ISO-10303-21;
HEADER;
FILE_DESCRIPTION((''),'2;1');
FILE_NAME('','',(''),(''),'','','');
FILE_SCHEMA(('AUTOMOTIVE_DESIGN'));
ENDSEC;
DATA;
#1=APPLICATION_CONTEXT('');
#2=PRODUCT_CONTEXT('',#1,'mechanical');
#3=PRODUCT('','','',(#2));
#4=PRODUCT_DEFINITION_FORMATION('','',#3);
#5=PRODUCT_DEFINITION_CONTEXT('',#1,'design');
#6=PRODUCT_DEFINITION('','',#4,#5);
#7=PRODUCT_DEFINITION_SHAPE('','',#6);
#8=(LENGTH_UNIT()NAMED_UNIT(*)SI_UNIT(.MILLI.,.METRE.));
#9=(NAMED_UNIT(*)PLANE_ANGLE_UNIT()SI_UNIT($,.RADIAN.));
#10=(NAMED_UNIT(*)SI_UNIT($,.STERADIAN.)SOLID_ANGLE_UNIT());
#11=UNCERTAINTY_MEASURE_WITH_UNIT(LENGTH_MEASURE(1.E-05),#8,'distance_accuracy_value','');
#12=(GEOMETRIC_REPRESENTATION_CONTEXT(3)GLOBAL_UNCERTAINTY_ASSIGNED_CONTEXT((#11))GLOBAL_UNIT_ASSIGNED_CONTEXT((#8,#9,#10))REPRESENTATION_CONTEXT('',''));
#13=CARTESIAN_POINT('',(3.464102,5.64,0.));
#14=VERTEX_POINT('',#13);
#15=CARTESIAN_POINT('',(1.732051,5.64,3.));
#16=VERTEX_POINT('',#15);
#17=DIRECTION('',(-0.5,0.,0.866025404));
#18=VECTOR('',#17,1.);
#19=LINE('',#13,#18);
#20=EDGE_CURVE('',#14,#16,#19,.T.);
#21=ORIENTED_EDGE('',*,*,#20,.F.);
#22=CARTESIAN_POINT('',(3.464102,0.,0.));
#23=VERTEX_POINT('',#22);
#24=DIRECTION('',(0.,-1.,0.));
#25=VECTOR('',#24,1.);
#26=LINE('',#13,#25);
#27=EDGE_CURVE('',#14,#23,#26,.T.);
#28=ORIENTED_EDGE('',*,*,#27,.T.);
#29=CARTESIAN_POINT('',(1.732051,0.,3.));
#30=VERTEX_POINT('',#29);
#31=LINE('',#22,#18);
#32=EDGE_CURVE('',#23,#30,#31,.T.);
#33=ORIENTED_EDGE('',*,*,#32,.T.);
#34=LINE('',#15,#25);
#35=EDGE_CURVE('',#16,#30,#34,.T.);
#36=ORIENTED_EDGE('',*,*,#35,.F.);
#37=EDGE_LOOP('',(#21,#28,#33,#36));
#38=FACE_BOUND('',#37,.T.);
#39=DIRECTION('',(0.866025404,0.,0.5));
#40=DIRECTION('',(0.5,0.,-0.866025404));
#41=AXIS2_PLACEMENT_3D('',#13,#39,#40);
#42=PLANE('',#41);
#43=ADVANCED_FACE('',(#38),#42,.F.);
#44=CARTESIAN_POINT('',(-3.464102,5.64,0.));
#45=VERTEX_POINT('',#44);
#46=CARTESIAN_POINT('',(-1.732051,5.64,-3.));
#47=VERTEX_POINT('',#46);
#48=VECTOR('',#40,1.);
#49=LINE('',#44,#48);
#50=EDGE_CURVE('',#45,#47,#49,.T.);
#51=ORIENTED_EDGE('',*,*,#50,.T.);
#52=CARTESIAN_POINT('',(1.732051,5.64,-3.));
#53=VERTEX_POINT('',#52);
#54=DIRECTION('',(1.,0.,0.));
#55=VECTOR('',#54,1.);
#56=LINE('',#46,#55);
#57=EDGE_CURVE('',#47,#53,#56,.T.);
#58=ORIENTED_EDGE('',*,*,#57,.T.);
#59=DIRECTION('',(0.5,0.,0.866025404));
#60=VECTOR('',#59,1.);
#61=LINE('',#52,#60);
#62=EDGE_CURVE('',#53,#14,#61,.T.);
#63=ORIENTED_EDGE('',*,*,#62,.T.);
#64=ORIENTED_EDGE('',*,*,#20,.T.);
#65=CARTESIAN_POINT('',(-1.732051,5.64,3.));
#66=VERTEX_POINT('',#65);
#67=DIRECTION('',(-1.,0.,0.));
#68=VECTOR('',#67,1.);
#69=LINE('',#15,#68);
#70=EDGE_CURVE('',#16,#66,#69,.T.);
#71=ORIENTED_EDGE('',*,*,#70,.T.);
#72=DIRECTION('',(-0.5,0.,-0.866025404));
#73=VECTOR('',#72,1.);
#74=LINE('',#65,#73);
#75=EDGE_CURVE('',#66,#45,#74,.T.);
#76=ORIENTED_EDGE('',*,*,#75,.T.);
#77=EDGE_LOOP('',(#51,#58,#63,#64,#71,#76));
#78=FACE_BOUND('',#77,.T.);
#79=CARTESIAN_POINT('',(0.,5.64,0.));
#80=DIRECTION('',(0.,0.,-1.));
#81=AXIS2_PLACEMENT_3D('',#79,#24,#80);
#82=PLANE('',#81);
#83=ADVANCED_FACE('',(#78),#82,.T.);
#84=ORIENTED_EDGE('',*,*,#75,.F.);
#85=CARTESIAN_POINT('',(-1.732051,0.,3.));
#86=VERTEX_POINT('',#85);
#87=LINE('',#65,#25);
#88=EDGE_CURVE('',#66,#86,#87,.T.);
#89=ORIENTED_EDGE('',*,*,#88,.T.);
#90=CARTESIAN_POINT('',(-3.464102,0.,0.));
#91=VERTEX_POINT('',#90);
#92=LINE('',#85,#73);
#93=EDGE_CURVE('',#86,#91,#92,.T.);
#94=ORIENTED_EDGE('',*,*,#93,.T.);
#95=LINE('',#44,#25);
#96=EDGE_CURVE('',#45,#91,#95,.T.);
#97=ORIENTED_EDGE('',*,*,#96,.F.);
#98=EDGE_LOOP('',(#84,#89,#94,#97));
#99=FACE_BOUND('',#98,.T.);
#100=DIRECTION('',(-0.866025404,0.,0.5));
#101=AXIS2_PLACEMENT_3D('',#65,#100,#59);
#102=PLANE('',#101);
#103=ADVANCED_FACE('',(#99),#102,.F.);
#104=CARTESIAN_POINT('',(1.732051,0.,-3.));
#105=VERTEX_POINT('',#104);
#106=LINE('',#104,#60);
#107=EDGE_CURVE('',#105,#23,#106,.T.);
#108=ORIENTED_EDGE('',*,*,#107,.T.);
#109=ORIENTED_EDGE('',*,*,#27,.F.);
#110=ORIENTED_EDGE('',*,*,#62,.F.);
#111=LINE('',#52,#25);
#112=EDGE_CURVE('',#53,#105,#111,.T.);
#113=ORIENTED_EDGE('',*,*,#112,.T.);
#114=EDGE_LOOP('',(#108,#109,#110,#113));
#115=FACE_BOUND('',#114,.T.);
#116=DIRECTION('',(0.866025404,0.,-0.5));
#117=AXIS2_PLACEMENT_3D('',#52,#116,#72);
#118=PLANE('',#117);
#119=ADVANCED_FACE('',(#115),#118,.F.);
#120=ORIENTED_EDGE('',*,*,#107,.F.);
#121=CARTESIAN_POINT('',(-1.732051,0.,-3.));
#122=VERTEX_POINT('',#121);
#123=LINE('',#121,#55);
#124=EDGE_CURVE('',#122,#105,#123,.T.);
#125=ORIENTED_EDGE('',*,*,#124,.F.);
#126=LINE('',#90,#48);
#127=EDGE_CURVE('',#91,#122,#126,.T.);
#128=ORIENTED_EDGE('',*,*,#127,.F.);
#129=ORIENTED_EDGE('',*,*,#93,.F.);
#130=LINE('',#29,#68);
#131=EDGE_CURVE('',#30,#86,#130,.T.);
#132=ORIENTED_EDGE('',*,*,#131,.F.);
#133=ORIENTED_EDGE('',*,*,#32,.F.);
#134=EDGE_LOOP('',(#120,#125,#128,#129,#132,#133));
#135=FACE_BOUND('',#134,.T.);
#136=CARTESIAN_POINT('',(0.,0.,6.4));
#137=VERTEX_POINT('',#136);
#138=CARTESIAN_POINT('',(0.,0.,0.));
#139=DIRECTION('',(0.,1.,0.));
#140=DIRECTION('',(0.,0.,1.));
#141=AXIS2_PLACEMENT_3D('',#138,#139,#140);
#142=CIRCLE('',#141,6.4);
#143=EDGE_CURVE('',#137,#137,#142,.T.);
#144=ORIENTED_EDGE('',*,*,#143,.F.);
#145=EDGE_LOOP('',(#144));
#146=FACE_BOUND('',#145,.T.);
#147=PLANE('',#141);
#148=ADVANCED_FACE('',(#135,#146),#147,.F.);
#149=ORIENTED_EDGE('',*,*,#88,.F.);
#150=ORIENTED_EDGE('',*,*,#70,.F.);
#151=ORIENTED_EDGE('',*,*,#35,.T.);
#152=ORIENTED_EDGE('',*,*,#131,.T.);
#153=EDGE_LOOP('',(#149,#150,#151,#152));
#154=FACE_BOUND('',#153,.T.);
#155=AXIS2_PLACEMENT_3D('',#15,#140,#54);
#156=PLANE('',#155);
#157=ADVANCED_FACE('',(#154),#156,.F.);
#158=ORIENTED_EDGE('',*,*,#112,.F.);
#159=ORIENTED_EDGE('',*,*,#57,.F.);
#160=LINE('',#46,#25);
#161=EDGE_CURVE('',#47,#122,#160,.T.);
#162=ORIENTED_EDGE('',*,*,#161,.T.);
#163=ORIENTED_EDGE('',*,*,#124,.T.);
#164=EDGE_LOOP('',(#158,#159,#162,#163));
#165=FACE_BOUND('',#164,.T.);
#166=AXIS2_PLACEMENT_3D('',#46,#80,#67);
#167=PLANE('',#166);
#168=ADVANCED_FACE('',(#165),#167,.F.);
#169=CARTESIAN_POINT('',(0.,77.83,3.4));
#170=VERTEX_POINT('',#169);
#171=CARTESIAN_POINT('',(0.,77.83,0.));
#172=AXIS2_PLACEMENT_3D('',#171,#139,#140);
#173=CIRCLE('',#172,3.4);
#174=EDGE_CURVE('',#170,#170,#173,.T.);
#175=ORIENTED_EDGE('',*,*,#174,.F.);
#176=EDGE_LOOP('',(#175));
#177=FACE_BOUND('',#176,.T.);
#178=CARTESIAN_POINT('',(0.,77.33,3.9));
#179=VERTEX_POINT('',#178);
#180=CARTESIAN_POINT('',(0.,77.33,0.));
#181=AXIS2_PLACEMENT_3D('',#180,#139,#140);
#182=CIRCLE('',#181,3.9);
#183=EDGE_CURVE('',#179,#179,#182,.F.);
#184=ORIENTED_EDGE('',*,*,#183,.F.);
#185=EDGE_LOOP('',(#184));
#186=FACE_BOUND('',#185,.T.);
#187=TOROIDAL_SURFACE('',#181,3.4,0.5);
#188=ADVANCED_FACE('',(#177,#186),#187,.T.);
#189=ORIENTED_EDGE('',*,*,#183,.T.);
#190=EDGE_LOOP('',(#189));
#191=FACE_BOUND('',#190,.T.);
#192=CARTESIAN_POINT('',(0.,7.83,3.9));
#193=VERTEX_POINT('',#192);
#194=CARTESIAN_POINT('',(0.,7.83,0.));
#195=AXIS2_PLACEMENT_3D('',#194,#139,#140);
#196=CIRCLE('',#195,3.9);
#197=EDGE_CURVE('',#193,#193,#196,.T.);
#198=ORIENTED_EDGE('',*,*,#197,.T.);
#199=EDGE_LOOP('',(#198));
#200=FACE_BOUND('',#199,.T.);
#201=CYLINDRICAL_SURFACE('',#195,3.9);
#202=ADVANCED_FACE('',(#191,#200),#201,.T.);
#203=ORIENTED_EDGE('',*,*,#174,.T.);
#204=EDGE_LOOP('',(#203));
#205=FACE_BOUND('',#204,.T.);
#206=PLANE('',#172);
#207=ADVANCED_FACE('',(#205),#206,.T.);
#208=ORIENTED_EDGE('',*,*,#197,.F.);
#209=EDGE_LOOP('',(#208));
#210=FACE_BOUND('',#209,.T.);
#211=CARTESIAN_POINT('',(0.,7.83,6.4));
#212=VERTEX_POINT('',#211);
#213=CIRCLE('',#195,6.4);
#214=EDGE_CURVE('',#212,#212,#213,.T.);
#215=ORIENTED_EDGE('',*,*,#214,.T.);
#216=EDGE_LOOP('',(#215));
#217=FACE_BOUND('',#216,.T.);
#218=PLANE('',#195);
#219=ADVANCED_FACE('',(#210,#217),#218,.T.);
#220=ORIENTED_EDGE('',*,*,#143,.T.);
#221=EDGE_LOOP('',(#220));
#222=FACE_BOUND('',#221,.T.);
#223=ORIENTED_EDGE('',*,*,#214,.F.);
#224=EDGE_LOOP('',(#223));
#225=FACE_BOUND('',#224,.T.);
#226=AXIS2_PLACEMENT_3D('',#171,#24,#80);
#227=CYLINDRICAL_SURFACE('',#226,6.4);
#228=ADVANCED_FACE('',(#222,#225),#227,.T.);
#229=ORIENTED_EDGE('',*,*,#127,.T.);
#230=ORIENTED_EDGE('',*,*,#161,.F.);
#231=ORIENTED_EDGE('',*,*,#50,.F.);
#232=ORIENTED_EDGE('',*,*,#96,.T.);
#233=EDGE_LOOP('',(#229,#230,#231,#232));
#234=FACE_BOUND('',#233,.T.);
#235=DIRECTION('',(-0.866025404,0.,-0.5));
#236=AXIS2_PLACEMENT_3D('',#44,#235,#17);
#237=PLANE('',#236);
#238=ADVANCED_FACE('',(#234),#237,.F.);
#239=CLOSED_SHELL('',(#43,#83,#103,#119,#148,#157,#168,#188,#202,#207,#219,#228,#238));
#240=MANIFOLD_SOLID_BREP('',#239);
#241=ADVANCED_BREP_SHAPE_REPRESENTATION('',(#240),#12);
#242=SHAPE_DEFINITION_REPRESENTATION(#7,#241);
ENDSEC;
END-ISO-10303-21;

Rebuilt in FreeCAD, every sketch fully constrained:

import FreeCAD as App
import Part
import Sketcher

V = App.Vector
Q = App.Units.Quantity


def edges_at(feature, points):
    """Names of the edges that pass closest to the given points."""
    edges = feature.Shape.Edges
    near = lambda p: min(range(len(edges)), key=lambda i: edges[i].distToShape(Part.Vertex(*p))[0])
    return sorted({f"Edge{near(p) + 1}" for p in points})

doc = App.newDocument("Part")
body = doc.addObject("PartDesign::Body", "Body")

sketch1 = body.newObject("Sketcher::SketchObject", "Sketch")
sketch1.AttachmentSupport = (doc.getObject("XZ_Plane"), [""])
sketch1.MapMode = "FlatFace"
sketch1.addGeometry(Part.Circle(V(0, 0, 0), V(0, 0, 1), 6.4), False)
sketch1.addConstraint([
    Sketcher.Constraint("Coincident", 0, 3, -1, 1),
    Sketcher.Constraint("Diameter", 0, Q("12.8 mm")),
])
pad1 = body.newObject("PartDesign::Pad", "Pad")
pad1.Profile = sketch1
pad1.Length = 77.83
pad1.Reversed = True

sketch2 = body.newObject("Sketcher::SketchObject", "Sketch001")
sketch2.AttachmentSupport = (doc.getObject("XZ_Plane"), [""])
sketch2.MapMode = "FlatFace"
sketch2.AttachmentOffset = App.Placement(V(0, 0, -77.83), App.Rotation())
sketch2.addGeometry([
    Part.LineSegment(V(-15.391, -15.391, 0), V(-15.391, 15.391, 0)),
    Part.LineSegment(V(-15.391, 15.391, 0), V(15.391, 15.391, 0)),
    Part.LineSegment(V(15.391, 15.391, 0), V(15.391, -15.391, 0)),
    Part.LineSegment(V(15.391, -15.391, 0), V(-15.391, -15.391, 0)),
    Part.Circle(V(0, 0, 0), V(0, 0, 1), 3.9),
], False)
sketch2.addConstraint([
    Sketcher.Constraint("Coincident", 0, 2, 1, 1),
    Sketcher.Constraint("Coincident", 1, 2, 2, 1),
    Sketcher.Constraint("Coincident", 2, 2, 3, 1),
    Sketcher.Constraint("Coincident", 3, 2, 0, 1),
    Sketcher.Constraint("Vertical", 0),
    Sketcher.Constraint("Horizontal", 1),
    Sketcher.Constraint("Vertical", 2),
    Sketcher.Constraint("Horizontal", 3),
    Sketcher.Constraint("Coincident", 4, 3, -1, 1),
    Sketcher.Constraint("Symmetric", 0, 2, 2, 2, -1, 1),
    Sketcher.Constraint("Equal", 3, 0),
    Sketcher.Constraint("Diameter", 4, Q("7.8 mm")),
    Sketcher.Constraint("DistanceX", 1, 1, 1, 2, Q("30.782 mm")),
])
pocket1 = body.newObject("PartDesign::Pocket", "Pocket")
pocket1.Profile = sketch2
pocket1.Length = 70
pocket1.Reversed = True

sketch3 = body.newObject("Sketcher::SketchObject", "Sketch002")
sketch3.AttachmentSupport = (doc.getObject("XZ_Plane"), [""])
sketch3.MapMode = "FlatFace"
sketch3.addGeometry([
    Part.LineSegment(V(3.464102, 0, 0), V(1.732051, 3, 0)),
    Part.LineSegment(V(1.732051, 3, 0), V(-1.732051, 3, 0)),
    Part.LineSegment(V(-1.732051, 3, 0), V(-3.464102, 0, 0)),
    Part.LineSegment(V(-3.464102, 0, 0), V(-1.732051, -3, 0)),
    Part.LineSegment(V(-1.732051, -3, 0), V(1.732051, -3, 0)),
    Part.LineSegment(V(1.732051, -3, 0), V(3.464102, 0, 0)),
], False)
sketch3.addConstraint([
    Sketcher.Constraint("Coincident", 0, 2, 1, 1),
    Sketcher.Constraint("Coincident", 1, 2, 2, 1),
    Sketcher.Constraint("Coincident", 2, 2, 3, 1),
    Sketcher.Constraint("Coincident", 3, 2, 4, 1),
    Sketcher.Constraint("Coincident", 4, 2, 5, 1),
    Sketcher.Constraint("Coincident", 5, 2, 0, 1),
    Sketcher.Constraint("Horizontal", 1),
    Sketcher.Constraint("Horizontal", 4),
    Sketcher.Constraint("Symmetric", 0, 2, 3, 2, -1, 1),
    Sketcher.Constraint("Symmetric", 2, 2, 5, 2, -1, 1),
    Sketcher.Constraint("PointOnObject", 2, 2, -1),
    Sketcher.Constraint("Parallel", 2, 5),
    Sketcher.Constraint("Vertical", 1, 2, 3, 2),
    Sketcher.Constraint("Angle", 0, Q("120 deg")),
    Sketcher.Constraint("DistanceY", -1, 1, 0, 2, Q("3 mm")),
    Sketcher.Constraint("DistanceX", 1, 2, 1, 1, Q("3.464102 mm")),
])
pocket2 = body.newObject("PartDesign::Pocket", "Pocket001")
pocket2.Profile = sketch3
pocket2.Length = 5.64
doc.recompute()

fillet = body.newObject("PartDesign::Fillet", "Fillet")
fillet.Base = (pocket2, edges_at(pocket2, [(-3.9, 77.83, 0)]))
fillet.Radius = 0.5

doc.recompute()
